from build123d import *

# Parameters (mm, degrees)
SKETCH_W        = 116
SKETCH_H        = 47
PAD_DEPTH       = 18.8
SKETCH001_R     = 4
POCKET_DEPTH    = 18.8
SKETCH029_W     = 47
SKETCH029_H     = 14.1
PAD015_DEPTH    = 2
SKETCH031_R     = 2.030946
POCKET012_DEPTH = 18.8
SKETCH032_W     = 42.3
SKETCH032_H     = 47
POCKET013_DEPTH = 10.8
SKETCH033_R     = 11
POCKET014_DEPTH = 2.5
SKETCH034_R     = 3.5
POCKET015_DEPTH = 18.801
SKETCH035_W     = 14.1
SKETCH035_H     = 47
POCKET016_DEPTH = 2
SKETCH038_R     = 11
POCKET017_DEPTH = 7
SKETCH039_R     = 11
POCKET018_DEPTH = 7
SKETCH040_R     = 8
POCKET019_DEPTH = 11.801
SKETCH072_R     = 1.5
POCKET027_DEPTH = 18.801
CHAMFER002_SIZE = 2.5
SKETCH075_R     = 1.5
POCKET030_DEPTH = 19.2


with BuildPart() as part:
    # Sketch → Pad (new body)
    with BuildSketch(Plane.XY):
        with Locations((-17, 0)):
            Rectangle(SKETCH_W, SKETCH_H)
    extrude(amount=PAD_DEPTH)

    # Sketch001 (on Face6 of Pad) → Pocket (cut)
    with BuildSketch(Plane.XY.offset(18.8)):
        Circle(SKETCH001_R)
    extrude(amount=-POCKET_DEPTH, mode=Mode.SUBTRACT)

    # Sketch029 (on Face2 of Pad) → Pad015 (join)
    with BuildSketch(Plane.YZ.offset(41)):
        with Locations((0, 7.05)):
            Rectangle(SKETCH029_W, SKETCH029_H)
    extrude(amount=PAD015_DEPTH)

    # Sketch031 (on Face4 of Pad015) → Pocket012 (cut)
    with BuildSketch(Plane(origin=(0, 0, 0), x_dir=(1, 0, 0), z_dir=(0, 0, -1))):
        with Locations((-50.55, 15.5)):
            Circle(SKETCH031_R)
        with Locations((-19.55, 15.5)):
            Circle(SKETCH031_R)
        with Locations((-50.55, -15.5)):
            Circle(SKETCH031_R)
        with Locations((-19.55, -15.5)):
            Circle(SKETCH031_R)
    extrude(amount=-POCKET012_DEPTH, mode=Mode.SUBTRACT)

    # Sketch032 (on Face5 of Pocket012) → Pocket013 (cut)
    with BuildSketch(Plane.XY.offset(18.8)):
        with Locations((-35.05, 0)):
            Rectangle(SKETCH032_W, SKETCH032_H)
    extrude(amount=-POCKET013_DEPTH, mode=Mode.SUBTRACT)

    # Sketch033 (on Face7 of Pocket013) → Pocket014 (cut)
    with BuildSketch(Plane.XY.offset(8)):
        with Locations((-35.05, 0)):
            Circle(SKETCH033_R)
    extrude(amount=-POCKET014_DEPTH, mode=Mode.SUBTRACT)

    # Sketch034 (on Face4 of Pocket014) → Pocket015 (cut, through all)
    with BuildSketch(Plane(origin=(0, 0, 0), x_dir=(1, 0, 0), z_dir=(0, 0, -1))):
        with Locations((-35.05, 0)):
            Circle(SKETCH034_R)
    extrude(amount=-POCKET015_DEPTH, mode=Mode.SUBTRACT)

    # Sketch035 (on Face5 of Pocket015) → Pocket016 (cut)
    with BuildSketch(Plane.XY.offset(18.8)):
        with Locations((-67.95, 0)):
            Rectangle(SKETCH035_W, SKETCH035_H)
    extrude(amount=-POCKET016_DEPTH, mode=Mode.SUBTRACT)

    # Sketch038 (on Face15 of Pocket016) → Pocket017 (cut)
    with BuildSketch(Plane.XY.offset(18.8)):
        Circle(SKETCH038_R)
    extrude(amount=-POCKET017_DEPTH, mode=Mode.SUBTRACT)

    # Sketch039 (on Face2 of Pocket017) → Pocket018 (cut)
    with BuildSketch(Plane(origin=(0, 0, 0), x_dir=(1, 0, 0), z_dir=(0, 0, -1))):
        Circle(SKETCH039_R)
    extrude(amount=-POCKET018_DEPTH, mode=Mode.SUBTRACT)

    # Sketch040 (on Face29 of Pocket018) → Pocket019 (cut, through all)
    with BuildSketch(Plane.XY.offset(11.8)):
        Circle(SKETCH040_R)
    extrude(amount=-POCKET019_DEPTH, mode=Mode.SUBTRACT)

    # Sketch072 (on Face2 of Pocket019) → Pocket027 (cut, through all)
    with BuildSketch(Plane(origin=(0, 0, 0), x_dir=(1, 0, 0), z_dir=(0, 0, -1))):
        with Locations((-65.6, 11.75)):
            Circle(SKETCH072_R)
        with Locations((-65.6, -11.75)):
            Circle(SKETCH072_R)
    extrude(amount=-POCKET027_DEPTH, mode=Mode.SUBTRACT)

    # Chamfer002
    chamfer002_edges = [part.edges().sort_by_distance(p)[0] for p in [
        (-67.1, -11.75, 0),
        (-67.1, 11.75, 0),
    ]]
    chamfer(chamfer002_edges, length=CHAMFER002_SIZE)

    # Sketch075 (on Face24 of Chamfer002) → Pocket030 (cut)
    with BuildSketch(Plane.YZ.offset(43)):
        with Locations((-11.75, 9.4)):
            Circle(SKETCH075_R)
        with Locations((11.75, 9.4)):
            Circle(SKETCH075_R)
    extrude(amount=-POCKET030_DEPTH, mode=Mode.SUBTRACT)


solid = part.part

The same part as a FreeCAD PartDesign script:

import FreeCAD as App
import Part
import Sketcher
from FreeCAD import Vector


def edges_at(feature, points):
    """Names of the edges that pass closest to the given points."""
    edges = feature.Shape.Edges
    near = lambda p: min(range(len(edges)), key=lambda i: edges[i].distToShape(Part.Vertex(*p))[0])
    return sorted({f"Edge{near(p) + 1}" for p in points})

doc = App.newDocument("Part")
body = doc.addObject("PartDesign::Body", "Body")

# Sketch on XY plane
sketch1 = body.newObject("Sketcher::SketchObject", "Sketch")
sketch1.AttachmentSupport = (doc.getObject("XY_Plane"), [""])
sketch1.MapMode = "FlatFace"
sketch1.addGeometry([
    Part.LineSegment(Vector(-75, 24, 0), Vector(-75, -24, 0)),
    Part.LineSegment(Vector(-75, -24, 0), Vector(41, -24, 0)),
    Part.LineSegment(Vector(41, -24, 0), Vector(41, 24, 0)),
    Part.LineSegment(Vector(41, 24, 0), Vector(-75, 24, 0)),
], False)
sketch1.addConstraint([
    Sketcher.Constraint("Coincident", 0, 2, 1, 1),
    Sketcher.Constraint("Coincident", 1, 2, 2, 1),
    Sketcher.Constraint("Coincident", 2, 2, 3, 1),
    Sketcher.Constraint("Coincident", 3, 2, 0, 1),
    Sketcher.Constraint("Vertical", 0),
    Sketcher.Constraint("Horizontal", 1),
    Sketcher.Constraint("Vertical", 2),
    Sketcher.Constraint("Horizontal", 3),
    Sketcher.Constraint("DistanceX", 1, 1, 1, 2, 116.0),
    Sketcher.Constraint("DistanceY", 0, 2, 0, 1, 47.0),
    Sketcher.Constraint("DistanceX", 0, 2, -1, 1, 75.0),
    Sketcher.Constraint("DistanceY", 0, 2, -1, 1, 23.5),
])
pad1 = body.newObject("PartDesign::Pad", "Pad")
pad1.Profile = sketch1
pad1.Length = 18.8

# Sketch on XY plane
sketch2 = body.newObject("Sketcher::SketchObject", "Sketch001")
sketch2.AttachmentSupport = (doc.getObject("XY_Plane"), [""])
sketch2.MapMode = "FlatFace"
sketch2.AttachmentOffset = App.Placement(Vector(0, 0, 18.8), App.Rotation())
sketch2.addGeometry(Part.Circle(Vector(0, 0, 0), Vector(0, 0, 1), 4), False)
sketch2.addConstraint([
    Sketcher.Constraint("Coincident", 0, 3, -1, 1),
    Sketcher.Constraint("Diameter", 0, 8.0),
])
pocket1 = body.newObject("PartDesign::Pocket", "Pocket")
pocket1.Profile = sketch2
pocket1.Length = 18.8

# Sketch on YZ plane
sketch3 = body.newObject("Sketcher::SketchObject", "Sketch002")
sketch3.AttachmentSupport = (doc.getObject("YZ_Plane"), [""])
sketch3.MapMode = "FlatFace"
sketch3.AttachmentOffset = App.Placement(Vector(0, 0, 41), App.Rotation())
sketch3.addGeometry([
    Part.LineSegment(Vector(-24, 14, 0), Vector(-24, 0, 0)),
    Part.LineSegment(Vector(-24, 0, 0), Vector(24, 0, 0)),
    Part.LineSegment(Vector(24, 0, 0), Vector(24, 14, 0)),
    Part.LineSegment(Vector(24, 14, 0), Vector(-24, 14, 0)),
], False)
sketch3.addConstraint([
    Sketcher.Constraint("Coincident", 0, 2, 1, 1),
    Sketcher.Constraint("Coincident", 1, 2, 2, 1),
    Sketcher.Constraint("Coincident", 2, 2, 3, 1),
    Sketcher.Constraint("Coincident", 3, 2, 0, 1),
    Sketcher.Constraint("Vertical", 0),
    Sketcher.Constraint("Horizontal", 1),
    Sketcher.Constraint("Vertical", 2),
    Sketcher.Constraint("Horizontal", 3),
    Sketcher.Constraint("Symmetric", 0, 2, 1, 2, -1, 1),
    Sketcher.Constraint("DistanceX", 1, 1, 1, 2, 47.0),
    Sketcher.Constraint("DistanceY", 0, 2, 0, 1, 14.1),
])
pad2 = body.newObject("PartDesign::Pad", "Pad001")
pad2.Profile = sketch3
pad2.Length = 2

# Sketch on XY plane
sketch4 = body.newObject("Sketcher::SketchObject", "Sketch003")
sketch4.AttachmentSupport = (doc.getObject("XY_Plane"), [""])
sketch4.MapMode = "FlatFace"
sketch4.addGeometry([
    Part.Circle(Vector(-50.5, -15.5, 0), Vector(0, 0, 1), 2),
    Part.Circle(Vector(-19.6, -15.5, 0), Vector(0, 0, 1), 2),
    Part.Circle(Vector(-50.5, 15.5, 0), Vector(0, 0, 1), 2),
    Part.Circle(Vector(-19.6, 15.5, 0), Vector(0, 0, 1), 2),
], False)
sketch4.addConstraint([
    Sketcher.Constraint("Equal", 0, 1),
    Sketcher.Constraint("Equal", 1, 2),
    Sketcher.Constraint("Equal", 2, 3),
    Sketcher.Constraint("Symmetric", 0, 3, 2, 3, -1),
    Sketcher.Constraint("Symmetric", 1, 3, 3, 3, -1),
    Sketcher.Constraint("Horizontal", 0, 3, 1, 3),
    Sketcher.Constraint("DistanceX", 0, 3, 1, 3, 31.0),
    Sketcher.Constraint("DistanceY", 0, 3, 2, 3, 31.0),
    Sketcher.Constraint("DistanceX", 0, 3, -1, 1, 50.55),
    Sketcher.Constraint("Diameter", 0, 4.061892),
])
pocket2 = body.newObject("PartDesign::Pocket", "Pocket001")
pocket2.Profile = sketch4
pocket2.Length = 18.8
pocket2.Reversed = True

# Sketch on XY plane
sketch5 = body.newObject("Sketcher::SketchObject", "Sketch004")
sketch5.AttachmentSupport = (doc.getObject("XY_Plane"), [""])
sketch5.MapMode = "FlatFace"
sketch5.AttachmentOffset = App.Placement(Vector(0, 0, 18.8), App.Rotation())
sketch5.addGeometry([
    Part.LineSegment(Vector(-56, 24, 0), Vector(-56, -24, 0)),
    Part.LineSegment(Vector(-56, -24, 0), Vector(-14, -24, 0)),
    Part.LineSegment(Vector(-14, -24, 0), Vector(-14, 24, 0)),
    Part.LineSegment(Vector(-14, 24, 0), Vector(-56, 24, 0)),
], False)
sketch5.addConstraint([
    Sketcher.Constraint("Coincident", 0, 2, 1, 1),
    Sketcher.Constraint("Coincident", 1, 2, 2, 1),
    Sketcher.Constraint("Coincident", 2, 2, 3, 1),
    Sketcher.Constraint("Coincident", 3, 2, 0, 1),
    Sketcher.Constraint("Vertical", 0),
    Sketcher.Constraint("Horizontal", 1),
    Sketcher.Constraint("Vertical", 2),
    Sketcher.Constraint("Horizontal", 3),
    Sketcher.Constraint("DistanceY", 0, 2, 0, 1, 47.0),
    Sketcher.Constraint("DistanceX", 1, 1, 1, 2, 42.3),
    Sketcher.Constraint("DistanceX", 0, 2, -1, 1, 56.2),
    Sketcher.Constraint("DistanceY", 0, 2, -1, 1, 23.5),
])
pocket3 = body.newObject("PartDesign::Pocket", "Pocket002")
pocket3.Profile = sketch5
pocket3.Length = 10.8

# Sketch on XY plane
sketch6 = body.newObject("Sketcher::SketchObject", "Sketch005")
sketch6.AttachmentSupport = (doc.getObject("XY_Plane"), [""])
sketch6.MapMode = "FlatFace"
sketch6.AttachmentOffset = App.Placement(Vector(0, 0, 8), App.Rotation())
sketch6.addGeometry(Part.Circle(Vector(-35, 0, 0), Vector(0, 0, 1), 11), False)
sketch6.addConstraint([
    Sketcher.Constraint("PointOnObject", 0, 3, -1),
    Sketcher.Constraint("Diameter", 0, 22.0),
    Sketcher.Constraint("DistanceX", 0, 3, -1, 1, 35.05),
])
pocket4 = body.newObject("PartDesign::Pocket", "Pocket003")
pocket4.Profile = sketch6
pocket4.Length = 2.5

# Sketch on XY plane
sketch7 = body.newObject("Sketcher::SketchObject", "Sketch006")
sketch7.AttachmentSupport = (doc.getObject("XY_Plane"), [""])
sketch7.MapMode = "FlatFace"
sketch7.addGeometry(Part.Circle(Vector(-35, 0, 0), Vector(0, 0, 1), 3.5), False)
sketch7.addConstraint([
    Sketcher.Constraint("PointOnObject", 0, 3, -1),
    Sketcher.Constraint("Diameter", 0, 7.0),
    Sketcher.Constraint("DistanceX", 0, 3, -1, 1, 35.05),
])
pocket5 = body.newObject("PartDesign::Pocket", "Pocket004")
pocket5.Profile = sketch7
pocket5.Type = "ThroughAll"
pocket5.Reversed = True

# Sketch on XY plane
sketch8 = body.newObject("Sketcher::SketchObject", "Sketch007")
sketch8.AttachmentSupport = (doc.getObject("XY_Plane"), [""])
sketch8.MapMode = "FlatFace"
sketch8.AttachmentOffset = App.Placement(Vector(0, 0, 18.8), App.Rotation())
sketch8.addGeometry([
    Part.LineSegment(Vector(-75, 24, 0), Vector(-75, -24, 0)),
    Part.LineSegment(Vector(-75, -24, 0), Vector(-61, -24, 0)),
    Part.LineSegment(Vector(-61, -24, 0), Vector(-61, 24, 0)),
    Part.LineSegment(Vector(-61, 24, 0), Vector(-75, 24, 0)),
], False)
sketch8.addConstraint([
    Sketcher.Constraint("Coincident", 0, 2, 1, 1),
    Sketcher.Constraint("Coincident", 1, 2, 2, 1),
    Sketcher.Constraint("Coincident", 2, 2, 3, 1),
    Sketcher.Constraint("Coincident", 3, 2, 0, 1),
    Sketcher.Constraint("Vertical", 0),
    Sketcher.Constraint("Horizontal", 1),
    Sketcher.Constraint("Vertical", 2),
    Sketcher.Constraint("Horizontal", 3),
    Sketcher.Constraint("DistanceY", 0, 2, 0, 1, 47.0),
    Sketcher.Constraint("DistanceX", 1, 1, 1, 2, 14.1),
    Sketcher.Constraint("DistanceX", 0, 2, -1, 1, 75.0),
    Sketcher.Constraint("DistanceY", 0, 2, -1, 1, 23.5),
])
pocket6 = body.newObject("PartDesign::Pocket", "Pocket005")
pocket6.Profile = sketch8
pocket6.Length = 2

# Sketch on XY plane
sketch9 = body.newObject("Sketcher::SketchObject", "Sketch008")
sketch9.AttachmentSupport = (doc.getObject("XY_Plane"), [""])
sketch9.MapMode = "FlatFace"
sketch9.AttachmentOffset = App.Placement(Vector(0, 0, 18.8), App.Rotation())
sketch9.addGeometry(Part.Circle(Vector(0, 0, 0), Vector(0, 0, 1), 11), False)
sketch9.addConstraint([
    Sketcher.Constraint("Coincident", 0, 3, -1, 1),
    Sketcher.Constraint("Diameter", 0, 22.0),
])
pocket7 = body.newObject("PartDesign::Pocket", "Pocket006")
pocket7.Profile = sketch9
pocket7.Length = 7

# Sketch on XY plane
sketch10 = body.newObject("Sketcher::SketchObject", "Sketch009")
sketch10.AttachmentSupport = (doc.getObject("XY_Plane"), [""])
sketch10.MapMode = "FlatFace"
sketch10.addGeometry(Part.Circle(Vector(0, 0, 0), Vector(0, 0, 1), 11), False)
sketch10.addConstraint([
    Sketcher.Constraint("Coincident", 0, 3, -1, 1),
    Sketcher.Constraint("Diameter", 0, 22.0),
])
pocket8 = body.newObject("PartDesign::Pocket", "Pocket007")
pocket8.Profile = sketch10
pocket8.Length = 7
pocket8.Reversed = True

# Sketch on XY plane
sketch11 = body.newObject("Sketcher::SketchObject", "Sketch010")
sketch11.AttachmentSupport = (doc.getObject("XY_Plane"), [""])
sketch11.MapMode = "FlatFace"
sketch11.AttachmentOffset = App.Placement(Vector(0, 0, 11.8), App.Rotation())
sketch11.addGeometry(Part.Circle(Vector(0, 0, 0), Vector(0, 0, 1), 8), False)
sketch11.addConstraint([
    Sketcher.Constraint("Coincident", 0, 3, -1, 1),
    Sketcher.Constraint("Diameter", 0, 16.0),
])
pocket9 = body.newObject("PartDesign::Pocket", "Pocket008")
pocket9.Profile = sketch11
pocket9.Type = "ThroughAll"

# Sketch on XY plane
sketch12 = body.newObject("Sketcher::SketchObject", "Sketch011")
sketch12.AttachmentSupport = (doc.getObject("XY_Plane"), [""])
sketch12.MapMode = "FlatFace"
sketch12.addGeometry([
    Part.Circle(Vector(-65.6, -11.8, 0), Vector(0, 0, 1), 1.5),
    Part.Circle(Vector(-65.6, 11.8, 0), Vector(0, 0, 1), 1.5),
], False)
sketch12.addConstraint([
    Sketcher.Constraint("Equal", 0, 1),
    Sketcher.Constraint("Symmetric", 0, 3, 1, 3, -1),
    Sketcher.Constraint("Diameter", 0, 3.0),
    Sketcher.Constraint("DistanceX", 0, 3, -1, 1, 65.6),
    Sketcher.Constraint("DistanceY", 0, 3, 1, 3, 23.5),
])
pocket10 = body.newObject("PartDesign::Pocket", "Pocket009")
pocket10.Profile = sketch12
pocket10.Type = "ThroughAll"
pocket10.Reversed = True
doc.recompute()

chamfer = body.newObject("PartDesign::Chamfer", "Chamfer")
chamfer.Base = (pocket10, edges_at(pocket10, [(-67.1, -11.75, 0), (-67.1, 11.75, 0)]))
chamfer.Size = 2.5

# Sketch on YZ plane
sketch13 = body.newObject("Sketcher::SketchObject", "Sketch012")
sketch13.AttachmentSupport = (doc.getObject("YZ_Plane"), [""])
sketch13.MapMode = "FlatFace"
sketch13.AttachmentOffset = App.Placement(Vector(0, 0, 43), App.Rotation())
sketch13.addGeometry([
    Part.Circle(Vector(-11.8, 9.4, 0), Vector(0, 0, 1), 1.5),
    Part.Circle(Vector(11.8, 9.4, 0), Vector(0, 0, 1), 1.5),
], False)
sketch13.addConstraint([
    Sketcher.Constraint("Equal", 0, 1),
    Sketcher.Constraint("Symmetric", 0, 3, 1, 3, -2),
    Sketcher.Constraint("Diameter", 0, 3.0),
    Sketcher.Constraint("DistanceY", -1, 1, 0, 3, 9.4),
    Sketcher.Constraint("DistanceX", 0, 3, 1, 3, 23.5),
])
pocket11 = body.newObject("PartDesign::Pocket", "Pocket010")
pocket11.Profile = sketch13
pocket11.Length = 19.2

doc.recompute()
